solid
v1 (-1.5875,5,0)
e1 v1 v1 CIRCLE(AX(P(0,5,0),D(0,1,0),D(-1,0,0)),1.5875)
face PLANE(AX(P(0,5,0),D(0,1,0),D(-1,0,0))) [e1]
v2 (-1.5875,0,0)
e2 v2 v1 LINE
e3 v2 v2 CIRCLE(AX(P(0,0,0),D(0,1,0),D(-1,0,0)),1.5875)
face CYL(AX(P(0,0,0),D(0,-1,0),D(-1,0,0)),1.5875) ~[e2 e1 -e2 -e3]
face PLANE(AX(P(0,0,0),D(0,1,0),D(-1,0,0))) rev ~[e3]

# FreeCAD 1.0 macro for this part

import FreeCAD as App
import Part
import Sketcher

V = App.Vector

doc = App.newDocument("Part")
body = doc.addObject("PartDesign::Body", "Body")

# Sketch on XZ plane
sketch1 = body.newObject("Sketcher::SketchObject", "Sketch")
sketch1.AttachmentSupport = (doc.getObject("XZ_Plane"), [""])
sketch1.MapMode = "FlatFace"
sketch1.addGeometry(Part.Circle(V(0, 0, 0), V(0, 0, 1), 1.5875), False)
sketch1.addConstraint([
    Sketcher.Constraint("Coincident", 0, 3, -1, 1),
    Sketcher.Constraint("Diameter", 0, 3.175),
])
pad1 = body.newObject("PartDesign::Pad", "Pad")
pad1.Profile = sketch1
pad1.Length = 5
pad1.Reversed = True

doc.recompute()
